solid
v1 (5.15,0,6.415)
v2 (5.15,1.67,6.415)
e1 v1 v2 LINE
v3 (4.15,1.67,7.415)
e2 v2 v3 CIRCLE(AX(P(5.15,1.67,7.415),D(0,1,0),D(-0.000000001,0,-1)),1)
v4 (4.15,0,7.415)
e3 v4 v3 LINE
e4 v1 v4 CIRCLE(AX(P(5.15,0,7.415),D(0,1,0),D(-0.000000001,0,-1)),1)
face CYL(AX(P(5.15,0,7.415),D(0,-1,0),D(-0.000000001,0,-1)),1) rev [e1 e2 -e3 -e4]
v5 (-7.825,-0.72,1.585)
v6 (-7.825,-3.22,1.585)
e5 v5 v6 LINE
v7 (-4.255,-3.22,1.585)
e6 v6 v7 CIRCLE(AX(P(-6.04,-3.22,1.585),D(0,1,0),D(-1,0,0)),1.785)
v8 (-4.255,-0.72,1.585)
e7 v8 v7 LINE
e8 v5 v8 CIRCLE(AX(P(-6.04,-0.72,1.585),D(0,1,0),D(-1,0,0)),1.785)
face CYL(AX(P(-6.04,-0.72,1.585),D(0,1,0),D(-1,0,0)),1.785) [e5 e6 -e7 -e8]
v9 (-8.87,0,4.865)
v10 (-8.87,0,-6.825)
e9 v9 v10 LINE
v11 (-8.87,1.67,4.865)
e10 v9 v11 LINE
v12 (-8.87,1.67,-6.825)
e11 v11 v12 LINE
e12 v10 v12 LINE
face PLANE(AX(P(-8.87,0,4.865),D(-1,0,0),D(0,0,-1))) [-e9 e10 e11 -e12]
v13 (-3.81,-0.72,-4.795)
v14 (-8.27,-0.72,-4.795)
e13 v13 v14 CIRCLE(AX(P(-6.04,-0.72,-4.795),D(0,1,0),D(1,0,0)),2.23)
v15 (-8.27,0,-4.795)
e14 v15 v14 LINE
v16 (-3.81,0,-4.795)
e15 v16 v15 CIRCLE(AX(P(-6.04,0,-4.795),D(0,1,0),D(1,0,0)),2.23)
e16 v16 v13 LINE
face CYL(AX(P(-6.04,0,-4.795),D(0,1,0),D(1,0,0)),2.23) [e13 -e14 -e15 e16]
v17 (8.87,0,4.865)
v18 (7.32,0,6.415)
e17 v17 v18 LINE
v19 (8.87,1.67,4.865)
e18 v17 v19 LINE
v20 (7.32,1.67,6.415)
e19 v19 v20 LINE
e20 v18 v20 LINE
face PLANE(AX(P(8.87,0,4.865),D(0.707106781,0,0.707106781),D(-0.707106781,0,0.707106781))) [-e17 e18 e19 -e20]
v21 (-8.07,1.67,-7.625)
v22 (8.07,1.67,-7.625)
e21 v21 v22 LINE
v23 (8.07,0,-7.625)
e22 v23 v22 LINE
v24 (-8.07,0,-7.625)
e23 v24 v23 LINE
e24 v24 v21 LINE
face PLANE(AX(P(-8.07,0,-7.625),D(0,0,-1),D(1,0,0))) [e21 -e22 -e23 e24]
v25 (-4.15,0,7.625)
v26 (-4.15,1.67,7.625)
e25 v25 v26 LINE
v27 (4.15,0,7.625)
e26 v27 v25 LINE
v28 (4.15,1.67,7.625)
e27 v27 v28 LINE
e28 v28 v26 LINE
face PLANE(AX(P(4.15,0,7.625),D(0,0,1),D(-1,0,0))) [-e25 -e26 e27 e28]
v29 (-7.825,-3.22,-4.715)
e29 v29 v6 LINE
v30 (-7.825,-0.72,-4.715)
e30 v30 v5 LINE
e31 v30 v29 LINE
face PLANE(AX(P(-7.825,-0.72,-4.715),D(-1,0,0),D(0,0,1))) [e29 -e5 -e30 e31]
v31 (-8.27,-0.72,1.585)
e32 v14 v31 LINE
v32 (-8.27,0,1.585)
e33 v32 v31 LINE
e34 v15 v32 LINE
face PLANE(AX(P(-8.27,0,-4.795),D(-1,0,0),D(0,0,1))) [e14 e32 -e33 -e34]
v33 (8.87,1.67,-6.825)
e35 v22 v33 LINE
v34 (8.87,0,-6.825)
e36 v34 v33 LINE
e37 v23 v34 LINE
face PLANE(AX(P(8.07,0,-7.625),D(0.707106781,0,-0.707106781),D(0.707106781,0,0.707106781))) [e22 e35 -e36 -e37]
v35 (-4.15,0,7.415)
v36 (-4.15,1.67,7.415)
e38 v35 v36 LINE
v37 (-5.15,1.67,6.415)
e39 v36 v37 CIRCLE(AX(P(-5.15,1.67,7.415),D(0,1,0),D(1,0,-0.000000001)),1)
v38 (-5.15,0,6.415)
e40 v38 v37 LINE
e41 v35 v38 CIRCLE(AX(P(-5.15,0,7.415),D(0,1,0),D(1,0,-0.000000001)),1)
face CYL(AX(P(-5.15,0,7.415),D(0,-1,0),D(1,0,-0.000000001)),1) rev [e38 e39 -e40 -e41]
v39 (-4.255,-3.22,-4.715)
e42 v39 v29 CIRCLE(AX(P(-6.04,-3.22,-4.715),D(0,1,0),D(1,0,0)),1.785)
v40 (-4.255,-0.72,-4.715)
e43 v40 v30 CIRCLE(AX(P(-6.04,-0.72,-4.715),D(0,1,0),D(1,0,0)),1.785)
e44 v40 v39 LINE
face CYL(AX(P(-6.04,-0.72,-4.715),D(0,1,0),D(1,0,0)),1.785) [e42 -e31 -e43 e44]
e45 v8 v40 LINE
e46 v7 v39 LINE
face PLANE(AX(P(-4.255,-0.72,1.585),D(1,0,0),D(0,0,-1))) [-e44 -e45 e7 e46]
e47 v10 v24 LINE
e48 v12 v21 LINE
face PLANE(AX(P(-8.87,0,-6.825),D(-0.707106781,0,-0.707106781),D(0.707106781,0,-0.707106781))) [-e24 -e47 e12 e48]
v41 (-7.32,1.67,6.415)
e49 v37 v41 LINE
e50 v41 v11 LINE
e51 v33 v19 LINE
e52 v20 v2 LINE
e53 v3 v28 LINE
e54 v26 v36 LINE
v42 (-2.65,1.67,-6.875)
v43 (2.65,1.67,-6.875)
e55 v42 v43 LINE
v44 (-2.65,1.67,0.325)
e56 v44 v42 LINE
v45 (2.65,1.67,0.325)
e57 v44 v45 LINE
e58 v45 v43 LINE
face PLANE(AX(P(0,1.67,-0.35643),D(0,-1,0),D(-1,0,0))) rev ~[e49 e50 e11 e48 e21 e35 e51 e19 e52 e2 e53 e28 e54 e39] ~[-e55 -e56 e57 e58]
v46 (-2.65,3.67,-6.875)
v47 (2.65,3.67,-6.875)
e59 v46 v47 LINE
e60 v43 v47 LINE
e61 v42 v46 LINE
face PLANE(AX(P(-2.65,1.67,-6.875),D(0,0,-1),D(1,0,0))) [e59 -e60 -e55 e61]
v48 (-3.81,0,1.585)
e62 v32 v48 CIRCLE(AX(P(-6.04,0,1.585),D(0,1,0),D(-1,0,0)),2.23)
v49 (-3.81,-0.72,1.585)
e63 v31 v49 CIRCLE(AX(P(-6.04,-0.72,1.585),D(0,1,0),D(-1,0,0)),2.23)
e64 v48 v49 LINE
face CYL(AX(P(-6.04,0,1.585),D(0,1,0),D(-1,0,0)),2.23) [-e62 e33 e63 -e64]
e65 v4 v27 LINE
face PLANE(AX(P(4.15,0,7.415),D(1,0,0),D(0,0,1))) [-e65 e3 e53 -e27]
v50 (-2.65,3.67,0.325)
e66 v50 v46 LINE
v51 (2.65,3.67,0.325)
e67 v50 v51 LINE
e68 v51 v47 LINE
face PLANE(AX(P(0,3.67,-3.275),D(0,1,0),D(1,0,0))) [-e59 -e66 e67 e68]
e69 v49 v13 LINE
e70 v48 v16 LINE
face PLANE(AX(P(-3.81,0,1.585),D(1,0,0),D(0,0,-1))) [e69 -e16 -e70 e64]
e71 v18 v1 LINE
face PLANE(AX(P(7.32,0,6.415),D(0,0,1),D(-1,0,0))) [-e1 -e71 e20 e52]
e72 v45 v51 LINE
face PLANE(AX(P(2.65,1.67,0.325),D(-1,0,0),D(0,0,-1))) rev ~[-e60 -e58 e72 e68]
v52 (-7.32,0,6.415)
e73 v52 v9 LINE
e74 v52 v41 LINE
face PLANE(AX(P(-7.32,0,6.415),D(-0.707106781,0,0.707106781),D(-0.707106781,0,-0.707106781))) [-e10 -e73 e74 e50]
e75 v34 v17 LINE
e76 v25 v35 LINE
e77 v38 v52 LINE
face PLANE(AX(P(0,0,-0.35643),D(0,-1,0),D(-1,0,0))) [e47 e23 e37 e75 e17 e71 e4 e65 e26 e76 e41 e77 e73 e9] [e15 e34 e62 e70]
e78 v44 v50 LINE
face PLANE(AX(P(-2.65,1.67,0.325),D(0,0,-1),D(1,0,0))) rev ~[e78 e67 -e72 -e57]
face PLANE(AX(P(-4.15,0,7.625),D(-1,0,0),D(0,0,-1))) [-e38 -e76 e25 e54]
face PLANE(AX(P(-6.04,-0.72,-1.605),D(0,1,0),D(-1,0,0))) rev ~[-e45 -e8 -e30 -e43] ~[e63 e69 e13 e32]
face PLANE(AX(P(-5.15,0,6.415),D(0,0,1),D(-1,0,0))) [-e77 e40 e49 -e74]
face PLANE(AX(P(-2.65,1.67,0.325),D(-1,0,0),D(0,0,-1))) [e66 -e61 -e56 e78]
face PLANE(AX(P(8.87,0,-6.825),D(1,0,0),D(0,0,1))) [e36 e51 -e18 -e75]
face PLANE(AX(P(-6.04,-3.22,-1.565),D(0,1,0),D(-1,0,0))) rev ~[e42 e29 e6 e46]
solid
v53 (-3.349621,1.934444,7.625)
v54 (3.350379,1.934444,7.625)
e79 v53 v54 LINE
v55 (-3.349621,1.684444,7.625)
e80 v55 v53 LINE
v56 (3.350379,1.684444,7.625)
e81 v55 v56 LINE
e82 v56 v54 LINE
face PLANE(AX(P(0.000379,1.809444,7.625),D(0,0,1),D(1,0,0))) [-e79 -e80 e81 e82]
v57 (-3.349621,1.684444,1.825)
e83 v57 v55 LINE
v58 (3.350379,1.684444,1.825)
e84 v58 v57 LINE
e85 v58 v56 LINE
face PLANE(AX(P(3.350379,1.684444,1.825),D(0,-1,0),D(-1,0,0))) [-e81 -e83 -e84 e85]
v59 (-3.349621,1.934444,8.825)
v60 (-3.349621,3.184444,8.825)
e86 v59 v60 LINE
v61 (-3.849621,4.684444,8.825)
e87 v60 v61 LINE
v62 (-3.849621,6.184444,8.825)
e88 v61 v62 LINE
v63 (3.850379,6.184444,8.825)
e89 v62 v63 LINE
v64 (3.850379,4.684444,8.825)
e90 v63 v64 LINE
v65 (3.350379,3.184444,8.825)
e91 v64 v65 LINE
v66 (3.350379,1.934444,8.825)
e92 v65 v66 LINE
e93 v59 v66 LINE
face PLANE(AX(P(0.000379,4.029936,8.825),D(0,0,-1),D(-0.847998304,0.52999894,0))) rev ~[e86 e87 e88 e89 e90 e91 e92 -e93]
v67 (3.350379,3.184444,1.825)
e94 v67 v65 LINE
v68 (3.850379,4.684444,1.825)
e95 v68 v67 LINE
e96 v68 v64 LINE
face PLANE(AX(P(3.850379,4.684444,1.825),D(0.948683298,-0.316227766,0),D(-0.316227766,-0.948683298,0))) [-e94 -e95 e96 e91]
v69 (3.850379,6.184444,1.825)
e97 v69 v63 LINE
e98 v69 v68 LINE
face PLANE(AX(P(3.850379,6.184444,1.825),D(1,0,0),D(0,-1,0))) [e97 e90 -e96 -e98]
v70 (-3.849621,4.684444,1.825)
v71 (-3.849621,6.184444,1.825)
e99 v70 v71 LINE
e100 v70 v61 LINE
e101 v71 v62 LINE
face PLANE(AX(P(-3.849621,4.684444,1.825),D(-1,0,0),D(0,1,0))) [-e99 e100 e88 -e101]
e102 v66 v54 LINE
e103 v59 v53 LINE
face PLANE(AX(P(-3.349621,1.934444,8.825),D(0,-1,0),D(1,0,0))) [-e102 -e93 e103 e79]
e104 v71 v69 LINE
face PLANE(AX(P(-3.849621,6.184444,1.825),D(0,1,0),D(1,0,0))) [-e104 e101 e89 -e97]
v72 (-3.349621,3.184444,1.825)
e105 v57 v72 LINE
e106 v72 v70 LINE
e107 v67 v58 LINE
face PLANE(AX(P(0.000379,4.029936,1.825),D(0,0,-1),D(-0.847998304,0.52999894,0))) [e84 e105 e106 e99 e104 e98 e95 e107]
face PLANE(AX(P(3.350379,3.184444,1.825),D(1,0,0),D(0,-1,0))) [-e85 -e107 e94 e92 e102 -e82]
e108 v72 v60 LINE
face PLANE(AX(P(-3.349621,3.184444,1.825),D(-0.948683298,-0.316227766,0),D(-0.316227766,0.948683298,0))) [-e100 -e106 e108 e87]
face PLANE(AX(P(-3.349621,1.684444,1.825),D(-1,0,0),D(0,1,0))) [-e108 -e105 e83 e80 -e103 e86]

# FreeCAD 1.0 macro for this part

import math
import FreeCAD as App
import Part
import Sketcher
from FreeCAD import Vector

doc = App.newDocument("Part")
params = doc.addObject("Spreadsheet::Sheet", "Params")
for row, (alias, value) in enumerate([
    ("sketch1_radius", "1 mm"),
    ("sketch1_width", "8.3 mm"),
    ("sketch1_width2", "16.14 mm"),
    ("sketch1_width3", "2.17 mm"),
    ("sketch1_height", "11.69 mm"),
    ("pad1_length", "1.67 mm"),
    ("sketch2_width", "5.3 mm"),
    ("sketch2_height", "7.2 mm"),
    ("pad2_length", "2 mm"),
    ("sketch3_radius", "2.23 mm"),
    ("sketch3_height", "6.38 mm"),
    ("pad3_length", "0.72 mm"),
    ("sketch4_height", "6.3 mm"),
    ("pad4_length", "2.5 mm"),
    ("sketch5_width", "7.7 mm"),
    ("sketch5_width2", "6.7 mm"),
    ("sketch5_height", "1.5 mm"),
    ("pad5_length", "7 mm"),
    ("sketch6_width", "6.7 mm"),
    ("sketch6_height", "0.25 mm"),
    ("pocket1_length", "1.2 mm"),
], start=1):
    params.set(f"A{row}", alias)
    params.set(f"B{row}", "=" + value)
    params.setAlias(f"B{row}", alias)

body = doc.addObject("PartDesign::Body", "Body")

# Sketch on XZ plane
sketch1 = body.newObject("Sketcher::SketchObject", "Sketch")
sketch1.AttachmentSupport = (doc.getObject("XZ_Plane"), [""])
sketch1.MapMode = "FlatFace"
sketch1.addGeometry(Part.LineSegment(Vector(8.07, -7.625, 0), Vector(-8.07, -7.625, 0)), False)
sketch1.addGeometry(Part.LineSegment(Vector(-8.07, -7.625, 0), Vector(-8.87, -6.825, 0)), False)
sketch1.addGeometry(Part.LineSegment(Vector(-8.87, -6.825, 0), Vector(-8.87, 4.865, 0)), False)
sketch1.addGeometry(Part.LineSegment(Vector(-8.87, 4.865, 0), Vector(-7.32, 6.415, 0)), False)
sketch1.addGeometry(Part.LineSegment(Vector(-7.32, 6.415, 0), Vector(-5.15, 6.415, 0)), False)
sketch1.addGeometry(Part.ArcOfCircle(Part.Circle(Vector(-5.15, 7.415, 0), Vector(0, 0, 1), 1), math.radians(-90), math.radians(0)), False)
sketch1.addGeometry(Part.LineSegment(Vector(-4.15, 7.415, 0), Vector(-4.15, 7.625, 0)), False)
sketch1.addGeometry(Part.LineSegment(Vector(-4.15, 7.625, 0), Vector(4.15, 7.625, 0)), False)
sketch1.addGeometry(Part.LineSegment(Vector(4.15, 7.625, 0), Vector(4.15, 7.415, 0)), False)
sketch1.addGeometry(Part.ArcOfCircle(Part.Circle(Vector(5.15, 7.415, 0), Vector(0, 0, 1), 1), math.radians(-180), math.radians(-90)), False)
sketch1.addGeometry(Part.LineSegment(Vector(5.15, 6.415, 0), Vector(7.32, 6.415, 0)), False)
sketch1.addGeometry(Part.LineSegment(Vector(7.32, 6.415, 0), Vector(8.87, 4.865, 0)), False)
sketch1.addGeometry(Part.LineSegment(Vector(8.87, 4.865, 0), Vector(8.87, -6.825, 0)), False)
sketch1.addGeometry(Part.LineSegment(Vector(8.87, -6.825, 0), Vector(8.07, -7.625, 0)), False)
sketch1.addConstraint(Sketcher.Constraint("Coincident", 0, 2, 1, 1))
sketch1.addConstraint(Sketcher.Constraint("Coincident", 1, 2, 2, 1))
sketch1.addConstraint(Sketcher.Constraint("Coincident", 2, 2, 3, 1))
sketch1.addConstraint(Sketcher.Constraint("Coincident", 3, 2, 4, 1))
sketch1.addConstraint(Sketcher.Constraint("Tangent", 4, 2, 5, 1))
sketch1.addConstraint(Sketcher.Constraint("Tangent", 5, 2, 6, 1))
sketch1.addConstraint(Sketcher.Constraint("Coincident", 6, 2, 7, 1))
sketch1.addConstraint(Sketcher.Constraint("Coincident", 7, 2, 8, 1))
sketch1.addConstraint(Sketcher.Constraint("Tangent", 8, 2, 9, 1))
sketch1.addConstraint(Sketcher.Constraint("Tangent", 9, 2, 10, 1))
sketch1.addConstraint(Sketcher.Constraint("Coincident", 10, 2, 11, 1))
sketch1.addConstraint(Sketcher.Constraint("Coincident", 11, 2, 12, 1))
sketch1.addConstraint(Sketcher.Constraint("Coincident", 12, 2, 13, 1))
sketch1.addConstraint(Sketcher.Constraint("Coincident", 13, 2, 0, 1))
sketch1.addConstraint(Sketcher.Constraint("Horizontal", 0))
sketch1.addConstraint(Sketcher.Constraint("Vertical", 2))
sketch1.addConstraint(Sketcher.Constraint("Horizontal", 4))
sketch1.addConstraint(Sketcher.Constraint("Vertical", 6))
sketch1.addConstraint(Sketcher.Constraint("Horizontal", 7))
sketch1.addConstraint(Sketcher.Constraint("Vertical", 8))
sketch1.addConstraint(Sketcher.Constraint("Horizontal", 10))
sketch1.addConstraint(Sketcher.Constraint("Vertical", 12))
sketch1.addConstraint(Sketcher.Constraint("Equal", 5, 9))
sketch1.addConstraint(Sketcher.Constraint("Symmetric", 5, 3, 9, 3, -2))
sketch1.addConstraint(Sketcher.Constraint("Symmetric", 2, 2, 11, 2, -2))
sketch1.addConstraint(Sketcher.Constraint("Perpendicular", 1, 3))
sketch1.addConstraint(Sketcher.Constraint("Perpendicular", 3, 11))
sketch1.addConstraint(Sketcher.Constraint("Perpendicular", 11, 13))
sketch1.addConstraint(Sketcher.Constraint("Horizontal", 1, 2, 12, 2))
sketch1.addConstraint(Sketcher.Constraint("Equal", 4, 10))
sketch1.addConstraint(Sketcher.Constraint("Radius", 5, 1.0))
sketch1.addConstraint(Sketcher.Constraint("DistanceX", 7, 1, 7, 2, 8.3))
sketch1.addConstraint(Sketcher.Constraint("DistanceX", 0, 2, 0, 1, 16.14))
sketch1.addConstraint(Sketcher.Constraint("DistanceX", 4, 1, 4, 2, 2.17))
sketch1.addConstraint(Sketcher.Constraint("DistanceY", 2, 1, 2, 2, 11.69))
sketch1.addConstraint(Sketcher.Constraint("DistanceY", 6, 1, 6, 2, 0.21))
sketch1.addConstraint(Sketcher.Constraint("DistanceX", 1, 2, 0, 2, 0.8))
sketch1.addConstraint(Sketcher.Constraint("DistanceY", -1, 1, 5, 3, 7.415))
sketch1.setExpression("Constraints[30]", "Params.sketch1_radius")
sketch1.setExpression("Constraints[31]", "Params.sketch1_width")
sketch1.setExpression("Constraints[32]", "Params.sketch1_width2")
sketch1.setExpression("Constraints[33]", "Params.sketch1_width3")
sketch1.setExpression("Constraints[34]", "Params.sketch1_height")
pad1 = body.newObject("PartDesign::Pad", "Pad")
pad1.Profile = sketch1
pad1.setExpression("Length", "Params.pad1_length")
pad1.Reversed = True

# Sketch on XZ plane
sketch2 = body.newObject("Sketcher::SketchObject", "Sketch001")
sketch2.AttachmentSupport = (doc.getObject("XZ_Plane"), [""])
sketch2.MapMode = "FlatFace"
sketch2.AttachmentOffset = App.Placement(Vector(0, 0, -1.67), App.Rotation())
sketch2.addGeometry(Part.LineSegment(Vector(-2.65, -6.875, 0), Vector(-2.65, 0.325, 0)), False)
sketch2.addGeometry(Part.LineSegment(Vector(-2.65, 0.325, 0), Vector(2.65, 0.325, 0)), False)
sketch2.addGeometry(Part.LineSegment(Vector(2.65, 0.325, 0), Vector(2.65, -6.875, 0)), False)
sketch2.addGeometry(Part.LineSegment(Vector(2.65, -6.875, 0), Vector(-2.65, -6.875, 0)), False)
sketch2.addConstraint(Sketcher.Constraint("Coincident", 0, 2, 1, 1))
sketch2.addConstraint(Sketcher.Constraint("Coincident", 1, 2, 2, 1))
sketch2.addConstraint(Sketcher.Constraint("Coincident", 2, 2, 3, 1))
sketch2.addConstraint(Sketcher.Constraint("Coincident", 3, 2, 0, 1))
sketch2.addConstraint(Sketcher.Constraint("Vertical", 0))
sketch2.addConstraint(Sketcher.Constraint("Horizontal", 1))
sketch2.addConstraint(Sketcher.Constraint("Vertical", 2))
sketch2.addConstraint(Sketcher.Constraint("Horizontal", 3))
sketch2.addConstraint(Sketcher.Constraint("DistanceX", 1, 1, 1, 2, 5.3))
sketch2.addConstraint(Sketcher.Constraint("DistanceY", 0, 1, 0, 2, 7.2))
sketch2.addConstraint(Sketcher.Constraint("DistanceX", 0, 2, -1, 1, 2.65))
sketch2.addConstraint(Sketcher.Constraint("DistanceY", -1, 1, 0, 2, 0.325))
sketch2.setExpression("Constraints[8]", "Params.sketch2_width")
sketch2.setExpression("Constraints[9]", "Params.sketch2_height")
pad2 = body.newObject("PartDesign::Pad", "Pad001")
pad2.Profile = sketch2
pad2.setExpression("Length", "Params.pad2_length")
pad2.Reversed = True

# Sketch on XZ plane
sketch3 = body.newObject("Sketcher::SketchObject", "Sketch002")
sketch3.AttachmentSupport = (doc.getObject("XZ_Plane"), [""])
sketch3.MapMode = "FlatFace"
sketch3.addGeometry(Part.LineSegment(Vector(-3.81, -4.795, 0), Vector(-3.81, 1.585, 0)), False)
sketch3.addGeometry(Part.ArcOfCircle(Part.Circle(Vector(-6.04, 1.585, 0), Vector(0, 0, 1), 2.23), math.radians(0), math.radians(180)), False)
sketch3.addGeometry(Part.LineSegment(Vector(-8.27, 1.585, 0), Vector(-8.27, -4.795, 0)), False)
sketch3.addGeometry(Part.ArcOfCircle(Part.Circle(Vector(-6.04, -4.795, 0), Vector(0, 0, 1), 2.23), math.radians(180), math.radians(360)), False)
sketch3.addConstraint(Sketcher.Constraint("Tangent", 0, 2, 1, 1))
sketch3.addConstraint(Sketcher.Constraint("Tangent", 1, 2, 2, 1))
sketch3.addConstraint(Sketcher.Constraint("Tangent", 2, 2, 3, 1))
sketch3.addConstraint(Sketcher.Constraint("Tangent", 3, 2, 0, 1))
sketch3.addConstraint(Sketcher.Constraint("Vertical", 0))
sketch3.addConstraint(Sketcher.Constraint("Vertical", 2))
sketch3.addConstraint(Sketcher.Constraint("Radius", 1, 2.23))
sketch3.addConstraint(Sketcher.Constraint("DistanceY", 0, 1, 0, 2, 6.38))
sketch3.addConstraint(Sketcher.Constraint("DistanceX", 1, 3, -1, 1, 6.04))
sketch3.addConstraint(Sketcher.Constraint("DistanceY", -1, 1, 1, 3, 1.585))
sketch3.setExpression("Constraints[6]", "Params.sketch3_radius")
sketch3.setExpression("Constraints[7]", "Params.sketch3_height")
pad3 = body.newObject("PartDesign::Pad", "Pad002")
pad3.Profile = sketch3
pad3.setExpression("Length", "Params.pad3_length")

# Sketch on XZ plane
sketch4 = body.newObject("Sketcher::SketchObject", "Sketch003")
sketch4.AttachmentSupport = (doc.getObject("XZ_Plane"), [""])
sketch4.MapMode = "FlatFace"
sketch4.AttachmentOffset = App.Placement(Vector(0, 0, 0.72), App.Rotation())
sketch4.addGeometry(Part.LineSegment(Vector(-4.255, -4.715, 0), Vector(-4.255, 1.585, 0)), False)
sketch4.addGeometry(Part.ArcOfCircle(Part.Circle(Vector(-6.04, 1.585, 0), Vector(0, 0, 1), 1.785), math.radians(0), math.radians(180)), False)
sketch4.addGeometry(Part.LineSegment(Vector(-7.825, 1.585, 0), Vector(-7.825, -4.715, 0)), False)
sketch4.addGeometry(Part.ArcOfCircle(Part.Circle(Vector(-6.04, -4.715, 0), Vector(0, 0, 1), 1.785), math.radians(180), math.radians(360)), False)
sketch4.addConstraint(Sketcher.Constraint("Tangent", 0, 2, 1, 1))
sketch4.addConstraint(Sketcher.Constraint("Tangent", 1, 2, 2, 1))
sketch4.addConstraint(Sketcher.Constraint("Tangent", 2, 2, 3, 1))
sketch4.addConstraint(Sketcher.Constraint("Tangent", 3, 2, 0, 1))
sketch4.addConstraint(Sketcher.Constraint("Vertical", 0))
sketch4.addConstraint(Sketcher.Constraint("Vertical", 2))
sketch4.addConstraint(Sketcher.Constraint("DistanceY", 0, 1, 0, 2, 6.3))
sketch4.addConstraint(Sketcher.Constraint("Radius", 1, 1.785))
sketch4.addConstraint(Sketcher.Constraint("DistanceX", 1, 3, -1, 1, 6.04))
sketch4.addConstraint(Sketcher.Constraint("DistanceY", -1, 1, 1, 3, 1.585))
sketch4.setExpression("Constraints[6]", "Params.sketch4_height")
pad4 = body.newObject("PartDesign::Pad", "Pad003")
pad4.Profile = sketch4
pad4.setExpression("Length", "Params.pad4_length")
body2 = doc.addObject("PartDesign::Body", "Body001")

# Sketch on XY plane
sketch5 = body2.newObject("Sketcher::SketchObject", "Sketch004")
sketch5.AttachmentSupport = (doc.getObject("XY_Plane001"), [""])
sketch5.MapMode = "FlatFace"
sketch5.AttachmentOffset = App.Placement(Vector(0, 0, 1.825), App.Rotation())
sketch5.addGeometry(Part.LineSegment(Vector(3.850379, 6.184444, 0), Vector(-3.849621, 6.184444, 0)), False)
sketch5.addGeometry(Part.LineSegment(Vector(-3.849621, 6.184444, 0), Vector(-3.849621, 4.684444, 0)), False)
sketch5.addGeometry(Part.LineSegment(Vector(-3.849621, 4.684444, 0), Vector(-3.349621, 3.184444, 0)), False)
sketch5.addGeometry(Part.LineSegment(Vector(-3.349621, 3.184444, 0), Vector(-3.349621, 1.684444, 0)), False)
sketch5.addGeometry(Part.LineSegment(Vector(-3.349621, 1.684444, 0), Vector(3.350379, 1.684444, 0)), False)
sketch5.addGeometry(Part.LineSegment(Vector(3.350379, 1.684444, 0), Vector(3.350379, 3.184444, 0)), False)
sketch5.addGeometry(Part.LineSegment(Vector(3.350379, 3.184444, 0), Vector(3.850379, 4.684444, 0)), False)
sketch5.addGeometry(Part.LineSegment(Vector(3.850379, 4.684444, 0), Vector(3.850379, 6.184444, 0)), False)
sketch5.addConstraint(Sketcher.Constraint("Coincident", 0, 2, 1, 1))
sketch5.addConstraint(Sketcher.Constraint("Coincident", 1, 2, 2, 1))
sketch5.addConstraint(Sketcher.Constraint("Coincident", 2, 2, 3, 1))
sketch5.addConstraint(Sketcher.Constraint("Coincident", 3, 2, 4, 1))
sketch5.addConstraint(Sketcher.Constraint("Coincident", 4, 2, 5, 1))
sketch5.addConstraint(Sketcher.Constraint("Coincident", 5, 2, 6, 1))
sketch5.addConstraint(Sketcher.Constraint("Coincident", 6, 2, 7, 1))
sketch5.addConstraint(Sketcher.Constraint("Coincident", 7, 2, 0, 1))
sketch5.addConstraint(Sketcher.Constraint("Horizontal", 0))
sketch5.addConstraint(Sketcher.Constraint("Vertical", 1))
sketch5.addConstraint(Sketcher.Constraint("Vertical", 3))
sketch5.addConstraint(Sketcher.Constraint("Horizontal", 4))
sketch5.addConstraint(Sketcher.Constraint("Vertical", 5))
sketch5.addConstraint(Sketcher.Constraint("Vertical", 7))
sketch5.addConstraint(Sketcher.Constraint("Horizontal", 2, 2, 5, 2))
sketch5.addConstraint(Sketcher.Constraint("Horizontal", 1, 2, 6, 2))
sketch5.addConstraint(Sketcher.Constraint("Equal", 1, 3))
sketch5.addConstraint(Sketcher.Constraint("Equal", 2, 6))
sketch5.addConstraint(Sketcher.Constraint("DistanceX", 0, 2, 0, 1, 7.7))
sketch5.addConstraint(Sketcher.Constraint("DistanceX", 4, 1, 4, 2, 6.7))
sketch5.addConstraint(Sketcher.Constraint("DistanceY", 1, 2, 1, 1, 1.5))
sketch5.addConstraint(Sketcher.Constraint("DistanceY", 2, 2, 0, 2, 3.0))
sketch5.addConstraint(Sketcher.Constraint("DistanceX", 0, 2, -1, 1, 3.849621))
sketch5.addConstraint(Sketcher.Constraint("DistanceY", -1, 1, 0, 2, 6.184444))
sketch5.setExpression("Constraints[18]", "Params.sketch5_width")
sketch5.setExpression("Constraints[19]", "Params.sketch5_width2")
sketch5.setExpression("Constraints[20]", "Params.sketch5_height")
pad5 = body2.newObject("PartDesign::Pad", "Pad004")
pad5.Profile = sketch5
pad5.setExpression("Length", "Params.pad5_length")

# Sketch on XY plane
sketch6 = body2.newObject("Sketcher::SketchObject", "Sketch005")
sketch6.AttachmentSupport = (doc.getObject("XY_Plane001"), [""])
sketch6.MapMode = "FlatFace"
sketch6.AttachmentOffset = App.Placement(Vector(0, 0, 8.825), App.Rotation())
sketch6.addGeometry(Part.LineSegment(Vector(-3.349621, 1.934444, 0), Vector(-3.349621, 1.684444, 0)), False)
sketch6.addGeometry(Part.LineSegment(Vector(-3.349621, 1.684444, 0), Vector(3.350379, 1.684444, 0)), False)
sketch6.addGeometry(Part.LineSegment(Vector(3.350379, 1.684444, 0), Vector(3.350379, 1.934444, 0)), False)
sketch6.addGeometry(Part.LineSegment(Vector(3.350379, 1.934444, 0), Vector(-3.349621, 1.934444, 0)), False)
sketch6.addConstraint(Sketcher.Constraint("Coincident", 0, 2, 1, 1))
sketch6.addConstraint(Sketcher.Constraint("Coincident", 1, 2, 2, 1))
sketch6.addConstraint(Sketcher.Constraint("Coincident", 2, 2, 3, 1))
sketch6.addConstraint(Sketcher.Constraint("Coincident", 3, 2, 0, 1))
sketch6.addConstraint(Sketcher.Constraint("Vertical", 0))
sketch6.addConstraint(Sketcher.Constraint("Horizontal", 1))
sketch6.addConstraint(Sketcher.Constraint("Vertical", 2))
sketch6.addConstraint(Sketcher.Constraint("Horizontal", 3))
sketch6.addConstraint(Sketcher.Constraint("DistanceX", 1, 1, 1, 2, 6.7))
sketch6.addConstraint(Sketcher.Constraint("DistanceY", 0, 2, 0, 1, 0.25))
sketch6.addConstraint(Sketcher.Constraint("DistanceX", 0, 2, -1, 1, 3.349621))
sketch6.addConstraint(Sketcher.Constraint("DistanceY", -1, 1, 0, 2, 1.684444))
sketch6.setExpression("Constraints[8]", "Params.sketch6_width")
sketch6.setExpression("Constraints[9]", "Params.sketch6_height")
pocket1 = body2.newObject("PartDesign::Pocket", "Pocket")
pocket1.Profile = sketch6
pocket1.setExpression("Length", "Params.pocket1_length")

doc.recompute()
